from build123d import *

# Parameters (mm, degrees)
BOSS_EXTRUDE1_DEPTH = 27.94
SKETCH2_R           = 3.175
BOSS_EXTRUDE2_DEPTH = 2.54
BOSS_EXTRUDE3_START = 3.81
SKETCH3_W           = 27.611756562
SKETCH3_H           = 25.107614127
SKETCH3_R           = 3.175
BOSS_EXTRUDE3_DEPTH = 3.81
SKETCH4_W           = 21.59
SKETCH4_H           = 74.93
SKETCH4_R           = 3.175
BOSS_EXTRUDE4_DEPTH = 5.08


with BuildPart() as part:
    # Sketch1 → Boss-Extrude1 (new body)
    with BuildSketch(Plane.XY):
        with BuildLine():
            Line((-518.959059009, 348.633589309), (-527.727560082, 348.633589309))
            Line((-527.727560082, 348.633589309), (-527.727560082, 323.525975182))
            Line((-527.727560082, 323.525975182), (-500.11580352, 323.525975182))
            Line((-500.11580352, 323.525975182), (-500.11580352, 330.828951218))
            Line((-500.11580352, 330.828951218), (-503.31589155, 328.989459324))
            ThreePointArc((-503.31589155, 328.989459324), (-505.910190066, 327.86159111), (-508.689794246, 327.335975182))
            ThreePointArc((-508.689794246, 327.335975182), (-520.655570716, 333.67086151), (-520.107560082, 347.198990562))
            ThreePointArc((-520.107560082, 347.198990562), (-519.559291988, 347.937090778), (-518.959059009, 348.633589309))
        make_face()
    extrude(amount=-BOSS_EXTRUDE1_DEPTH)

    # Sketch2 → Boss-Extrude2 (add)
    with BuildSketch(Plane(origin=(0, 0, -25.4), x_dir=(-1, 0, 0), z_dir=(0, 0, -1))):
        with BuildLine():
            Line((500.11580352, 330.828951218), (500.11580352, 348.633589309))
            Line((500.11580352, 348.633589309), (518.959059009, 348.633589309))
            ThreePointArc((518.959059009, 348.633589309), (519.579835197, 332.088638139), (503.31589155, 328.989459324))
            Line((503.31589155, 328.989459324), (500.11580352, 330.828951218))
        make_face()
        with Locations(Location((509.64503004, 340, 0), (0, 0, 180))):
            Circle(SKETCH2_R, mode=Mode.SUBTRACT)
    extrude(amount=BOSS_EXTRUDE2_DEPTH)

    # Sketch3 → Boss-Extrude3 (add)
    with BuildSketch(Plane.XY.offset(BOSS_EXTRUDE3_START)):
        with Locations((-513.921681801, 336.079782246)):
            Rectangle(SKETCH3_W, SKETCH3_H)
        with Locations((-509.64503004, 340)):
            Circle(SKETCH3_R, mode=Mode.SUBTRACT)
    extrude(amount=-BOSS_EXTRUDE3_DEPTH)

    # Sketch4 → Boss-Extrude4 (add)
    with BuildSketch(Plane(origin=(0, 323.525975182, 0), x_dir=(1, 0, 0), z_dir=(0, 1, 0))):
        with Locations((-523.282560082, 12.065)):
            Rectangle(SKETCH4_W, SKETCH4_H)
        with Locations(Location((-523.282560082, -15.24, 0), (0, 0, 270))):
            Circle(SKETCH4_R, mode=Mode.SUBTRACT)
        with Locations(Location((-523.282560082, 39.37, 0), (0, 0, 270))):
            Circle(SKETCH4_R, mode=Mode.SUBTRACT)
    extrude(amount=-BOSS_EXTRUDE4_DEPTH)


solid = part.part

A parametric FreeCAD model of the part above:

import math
import FreeCAD as App
import Part
import Sketcher
Q = App.Units.Quantity


def add_polygon(sketch, points):
    """Adds a closed chain of lines whose ends are joined by coincident constraints."""
    first, n = sketch.GeometryCount, len(points)
    for a, b in zip(points, points[1:] + points[:1]):
        sketch.addGeometry(Part.LineSegment(App.Vector(*a, 0), App.Vector(*b, 0)), False)
    for i in range(n):
        sketch.addConstraint(Sketcher.Constraint("Coincident", first + i, 2, first + (i + 1) % n, 1))

doc = App.newDocument("Part")
params = doc.addObject("Spreadsheet::Sheet", "Params")
for row, (alias, value) in enumerate([
    ("sketch1_radius", "0.5 in"),
    ("pad1_length", "1.1 in"),
    ("sketch2_radius", "0.5 in"),
    ("sketch2_diameter", "0.25 in"),
    ("pad2_length", "0.1 in"),
    ("sketch3_diameter", "0.25 in"),
    ("pad3_length", "0.15 in"),
    ("sketch4_diameter", "0.25 in"),
    ("sketch4_width", "0.85 in"),
    ("sketch4_height", "2.95 in"),
    ("pad4_length", "0.2 in"),
], start=1):
    params.set(f"A{row}", alias)
    params.set(f"B{row}", "=" + value)
    params.setAlias(f"B{row}", alias)

body = doc.addObject("PartDesign::Body", "Body")

# Sketch on XY plane
sketch1 = doc.addObject("Sketcher::SketchObject", "Sketch")
body.addObject(sketch1)
sketch1.AttachmentSupport = (doc.XY_Plane, [""])
sketch1.MapMode = "FlatFace"
sketch1.addGeometry([
    Part.LineSegment(App.Vector(-518.959059, 348.633589, 0), App.Vector(-527.72756, 348.633589, 0)),  # 0
    Part.LineSegment(App.Vector(-527.72756, 348.633589, 0), App.Vector(-527.72756, 323.525975, 0)),  # 1
    Part.LineSegment(App.Vector(-527.72756, 323.525975, 0), App.Vector(-500.115804, 323.525975, 0)),  # 2
    Part.LineSegment(App.Vector(-500.115804, 323.525975, 0), App.Vector(-500.115804, 330.828951, 0)),  # 3
    Part.LineSegment(App.Vector(-500.115804, 330.828951, 0), App.Vector(-503.315892, 328.989459, 0)),  # 4
    Part.ArcOfCircle(Part.Circle(App.Vector(-509.64503, 340, 0), App.Vector(0, 0, 1), 12.7), math.radians(-85.6864), math.radians(-60.108617)),  # 5
    Part.ArcOfCircle(Part.Circle(App.Vector(-509.64503, 340, 0), App.Vector(0, 0, 1), 12.7), math.radians(145.469167), math.radians(274.3136)),  # 6
    Part.ArcOfCircle(Part.Circle(App.Vector(-509.64503, 340, 0), App.Vector(0, 0, 1), 12.7), math.radians(137.171188), math.radians(145.469167)),  # 7
], False)
sketch1.addConstraint([
    Sketcher.Constraint("Coincident", 0, 2, 1, 1),
    Sketcher.Constraint("Coincident", 1, 2, 2, 1),
    Sketcher.Constraint("Coincident", 2, 2, 3, 1),
    Sketcher.Constraint("Coincident", 3, 2, 4, 1),
    Sketcher.Constraint("Tangent", 4, 2, 5, 2),
    Sketcher.Constraint("Tangent", 5, 1, 6, 2),
    Sketcher.Constraint("Tangent", 6, 1, 7, 2),
    Sketcher.Constraint("Coincident", 7, 1, 0, 1),
    Sketcher.Constraint("Horizontal", 0),
    Sketcher.Constraint("Vertical", 1),
    Sketcher.Constraint("Horizontal", 2),
    Sketcher.Constraint("Vertical", 3),
    Sketcher.Constraint("Coincident", 7, 3, 5, 3),
    Sketcher.Constraint("Radius", 5, Q("0.5 in")),
    Sketcher.Constraint("DistanceX", 0, 2, 6, 1, Q("0.3 in")),
    Sketcher.Constraint("DistanceY", 2, 2, 5, 1, Q("0.15 in")),
    Sketcher.Constraint("DistanceX", 0, 2, 0, 1, Q("8.768501 mm")),
    Sketcher.Constraint("DistanceY", -1, 1, 5, 3, Q("340 mm")),
    Sketcher.Constraint("DistanceY", 6, 1, 0, 2, Q("1.434599 mm")),
    Sketcher.Constraint("Distance", 4, Q("3.69111 mm")),
    Sketcher.Constraint("DistanceX", 2, 1, 2, 2, Q("27.611757 mm")),
    Sketcher.Constraint("DistanceY", 1, 2, 1, 1, Q("25.107614 mm")),
    Sketcher.Constraint("DistanceX", 5, 3, -1, 1, Q("509.64503 mm")),
])
sketch1.setExpression("Constraints[13]", "Params.sketch1_radius")
pad1 = doc.addObject("PartDesign::Pad", "Pad")
body.addObject(pad1)
pad1.Profile = sketch1
pad1.setExpression("Length", "Params.pad1_length")
pad1.Reversed = True

# Sketch on XY plane
sketch2 = doc.addObject("Sketcher::SketchObject", "Sketch001")
body.addObject(sketch2)
sketch2.AttachmentSupport = (doc.XY_Plane, [""])
sketch2.MapMode = "FlatFace"
sketch2.AttachmentOffset = App.Placement(App.Vector(0, 0, -1 * 25.4), App.Rotation())
sketch2.addGeometry([
    Part.LineSegment(App.Vector(-500.115804, 348.633589, 0), App.Vector(-500.115804, 330.828951, 0)),  # 0
    Part.LineSegment(App.Vector(-500.115804, 330.828951, 0), App.Vector(-503.315892, 328.989459, 0)),  # 1
    Part.ArcOfCircle(Part.Circle(App.Vector(-509.64503, 340, 0), App.Vector(0, 0, 1), 12.7), math.radians(137.171188), math.radians(299.891383)),  # 2
    Part.LineSegment(App.Vector(-518.959059, 348.633589, 0), App.Vector(-500.115804, 348.633589, 0)),  # 3
    Part.Circle(App.Vector(-509.64503, 340, 0), App.Vector(0, 0, 1), 3.175),  # 4
], False)
sketch2.addConstraint([
    Sketcher.Constraint("Coincident", 0, 2, 1, 1),
    Sketcher.Constraint("Tangent", 1, 2, 2, 2),
    Sketcher.Constraint("Coincident", 2, 1, 3, 1),
    Sketcher.Constraint("Coincident", 3, 2, 0, 1),
    Sketcher.Constraint("Vertical", 0),
    Sketcher.Constraint("Horizontal", 3),
    Sketcher.Constraint("Coincident", 4, 3, 2, 3),
    Sketcher.Constraint("Radius", 2, Q("0.5 in")),
    Sketcher.Constraint("Diameter", 4, Q("0.25 in")),
    Sketcher.Constraint("DistanceY", 0, 2, 0, 1, Q("17.804638 mm")),
    Sketcher.Constraint("DistanceY", -1, 1, 2, 3, Q("340 mm")),
    Sketcher.Constraint("Distance", 1, Q("3.69111 mm")),
    Sketcher.Constraint("DistanceX", 3, 1, 3, 2, Q("18.843255 mm")),
    Sketcher.Constraint("DistanceX", 2, 3, -1, 1, Q("509.64503 mm")),
])
sketch2.setExpression("Constraints[7]", "Params.sketch2_radius")
sketch2.setExpression("Constraints[8]", "Params.sketch2_diameter")
pad2 = doc.addObject("PartDesign::Pad", "Pad001")
body.addObject(pad2)
pad2.Profile = sketch2
pad2.setExpression("Length", "Params.pad2_length")
pad2.Reversed = True

# Sketch on XY plane
sketch3 = doc.addObject("Sketcher::SketchObject", "Sketch002")
body.addObject(sketch3)
sketch3.AttachmentSupport = (doc.XY_Plane, [""])
sketch3.MapMode = "FlatFace"
sketch3.AttachmentOffset = App.Placement(App.Vector(0, 0, 0.15 * 25.4), App.Rotation())
add_polygon(sketch3, [(-527.72756, 348.633589), (-527.72756, 323.525975), (-500.115804, 323.525975), (-500.115804, 348.633589)])  # lines 0-3
sketch3.addGeometry(Part.Circle(App.Vector(-509.64503, 340, 0), App.Vector(0, 0, 1), 3.175), False)  # 4
sketch3.addConstraint([
    Sketcher.Constraint("Vertical", 0),
    Sketcher.Constraint("Horizontal", 1),
    Sketcher.Constraint("Vertical", 2),
    Sketcher.Constraint("Horizontal", 3),
    Sketcher.Constraint("Diameter", 4, Q("0.25 in")),
    Sketcher.Constraint("DistanceY", -1, 1, 4, 3, Q("340 mm")),
    Sketcher.Constraint("DistanceX", 1, 1, 1, 2, Q("27.611757 mm")),
    Sketcher.Constraint("DistanceY", 0, 2, 0, 1, Q("25.107614 mm")),
    Sketcher.Constraint("DistanceX", 4, 3, -1, 1, Q("509.64503 mm")),
    Sketcher.Constraint("DistanceX", 0, 2, -1, 1, Q("527.72756 mm")),
    Sketcher.Constraint("DistanceY", -1, 1, 2, 2, Q("348.633589 mm")),
])
sketch3.setExpression("Constraints[8]", "Params.sketch3_diameter")
pad3 = doc.addObject("PartDesign::Pad", "Pad002")
body.addObject(pad3)
pad3.Profile = sketch3
pad3.setExpression("Length", "Params.pad3_length")
pad3.Reversed = True

# Sketch on XZ plane
sketch4 = doc.addObject("Sketcher::SketchObject", "Sketch003")
body.addObject(sketch4)
sketch4.AttachmentSupport = (doc.XZ_Plane, [""])
sketch4.MapMode = "FlatFace"
sketch4.AttachmentOffset = App.Placement(App.Vector(0, 0, -323.525975), App.Rotation())
add_polygon(sketch4, [(-534.07756, -49.53), (-534.07756, 25.4), (-512.48756, 25.4), (-512.48756, -49.53)])  # lines 0-3
sketch4.addGeometry(Part.Circle(App.Vector(-523.28256, 15.24, 0), App.Vector(0, 0, 1), 3.175), False)  # 4
sketch4.addGeometry(Part.Circle(App.Vector(-523.28256, -39.37, 0), App.Vector(0, 0, 1), 3.175), False)  # 5
sketch4.addConstraint([
    Sketcher.Constraint("Vertical", 0),
    Sketcher.Constraint("Horizontal", 1),
    Sketcher.Constraint("Vertical", 2),
    Sketcher.Constraint("Horizontal", 3),
    Sketcher.Constraint("Equal", 4, 5),
    Sketcher.Constraint("Vertical", 4, 3, 5, 3),
    Sketcher.Constraint("Diameter", 4, Q("0.25 in")),
    Sketcher.Constraint("DistanceY", -1, 1, 0, 2, Q("1 in")),
    Sketcher.Constraint("DistanceX", 1, 1, 1, 2, Q("0.85 in")),
    Sketcher.Constraint("DistanceY", 0, 1, 0, 2, Q("2.95 in")),
    Sketcher.Constraint("DistanceY", -1, 1, 4, 3, Q("0.6 in")),
    Sketcher.Constraint("DistanceY", 2, 2, 5, 3, Q("0.4 in")),
    Sketcher.Constraint("DistanceX", 0, 2, 4, 3, Q("0.425 in")),
    Sketcher.Constraint("DistanceX", 4, 3, -1, 1, Q("523.28256 mm")),
])
sketch4.setExpression("Constraints[10]", "Params.sketch4_diameter")
sketch4.setExpression("Constraints[12]", "Params.sketch4_width")
sketch4.setExpression("Constraints[13]", "Params.sketch4_height")
pad4 = doc.addObject("PartDesign::Pad", "Pad003")
body.addObject(pad4)
pad4.Profile = sketch4
pad4.setExpression("Length", "Params.pad4_length")

doc.recompute()
